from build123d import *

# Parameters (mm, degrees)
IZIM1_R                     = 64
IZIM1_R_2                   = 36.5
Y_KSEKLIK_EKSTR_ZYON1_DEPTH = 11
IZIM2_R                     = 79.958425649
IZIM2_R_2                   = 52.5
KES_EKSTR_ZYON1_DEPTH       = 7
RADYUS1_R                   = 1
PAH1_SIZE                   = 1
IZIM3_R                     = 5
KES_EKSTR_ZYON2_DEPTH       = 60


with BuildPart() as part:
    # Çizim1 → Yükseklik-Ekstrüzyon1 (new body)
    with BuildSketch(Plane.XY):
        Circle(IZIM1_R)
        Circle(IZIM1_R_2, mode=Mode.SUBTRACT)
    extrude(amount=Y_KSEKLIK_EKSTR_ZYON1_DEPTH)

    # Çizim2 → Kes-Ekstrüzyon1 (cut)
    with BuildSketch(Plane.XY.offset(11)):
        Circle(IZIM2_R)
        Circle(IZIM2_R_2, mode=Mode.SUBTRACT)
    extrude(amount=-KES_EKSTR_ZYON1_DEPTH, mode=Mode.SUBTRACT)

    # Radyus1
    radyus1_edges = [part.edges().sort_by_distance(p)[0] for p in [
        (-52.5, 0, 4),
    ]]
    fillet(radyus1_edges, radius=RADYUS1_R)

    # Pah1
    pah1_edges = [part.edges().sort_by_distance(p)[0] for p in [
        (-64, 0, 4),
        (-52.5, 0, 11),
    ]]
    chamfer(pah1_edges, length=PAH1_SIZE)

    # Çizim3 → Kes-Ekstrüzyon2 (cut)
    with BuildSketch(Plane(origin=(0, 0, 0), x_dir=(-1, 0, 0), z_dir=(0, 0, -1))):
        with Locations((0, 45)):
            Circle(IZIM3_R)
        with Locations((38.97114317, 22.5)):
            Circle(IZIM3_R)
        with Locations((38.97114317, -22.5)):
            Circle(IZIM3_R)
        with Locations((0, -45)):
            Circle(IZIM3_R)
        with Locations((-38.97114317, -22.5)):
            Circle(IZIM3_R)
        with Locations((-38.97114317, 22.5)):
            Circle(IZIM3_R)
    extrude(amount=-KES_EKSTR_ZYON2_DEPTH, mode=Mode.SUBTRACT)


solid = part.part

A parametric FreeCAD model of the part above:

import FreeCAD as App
import Part
import Sketcher

V = App.Vector
Q = App.Units.Quantity


def edges_at(feature, points):
    """Names of the edges that pass closest to the given points."""
    edges = feature.Shape.Edges
    near = lambda p: min(range(len(edges)), key=lambda i: edges[i].distToShape(Part.Vertex(*p))[0])
    return sorted({f"Edge{near(p) + 1}" for p in points})

doc = App.newDocument("Part")
body = doc.addObject("PartDesign::Body", "Body")

# Sketch on XY plane
sketch1 = body.newObject("Sketcher::SketchObject", "Sketch")
sketch1.AttachmentSupport = (doc.getObject("XY_Plane"), [""])
sketch1.MapMode = "FlatFace"
sketch1.addGeometry(Part.Circle(V(0, 0, 0), V(0, 0, 1), 64), False)
sketch1.addGeometry(Part.Circle(V(0, 0, 0), V(0, 0, 1), 36.5), False)
sketch1.addConstraint(Sketcher.Constraint("Coincident", 0, 3, -1, 1))
sketch1.addConstraint(Sketcher.Constraint("Coincident", 1, 3, -1, 1))
sketch1.addConstraint(Sketcher.Constraint("Diameter", 0, Q("128 mm")))
sketch1.addConstraint(Sketcher.Constraint("Diameter", 1, Q("73 mm")))
pad1 = body.newObject("PartDesign::Pad", "Pad")
pad1.Profile = sketch1
pad1.Length = 11

# Sketch on XY plane
sketch2 = body.newObject("Sketcher::SketchObject", "Sketch001")
sketch2.AttachmentSupport = (doc.getObject("XY_Plane"), [""])
sketch2.MapMode = "FlatFace"
sketch2.AttachmentOffset = App.Placement(V(0, 0, 11), App.Rotation())
sketch2.addGeometry(Part.Circle(V(0, 0, 0), V(0, 0, 1), 79.958426), False)
sketch2.addGeometry(Part.Circle(V(0, 0, 0), V(0, 0, 1), 52.5), False)
sketch2.addConstraint(Sketcher.Constraint("Coincident", 0, 3, -1, 1))
sketch2.addConstraint(Sketcher.Constraint("Coincident", 1, 3, -1, 1))
sketch2.addConstraint(Sketcher.Constraint("Diameter", 1, Q("105 mm")))
sketch2.addConstraint(Sketcher.Constraint("Diameter", 0, Q("159.916851 mm")))
pocket1 = body.newObject("PartDesign::Pocket", "Pocket")
pocket1.Profile = sketch2
pocket1.Length = 7
doc.recompute()

fillet = body.newObject("PartDesign::Fillet", "Fillet")
fillet.Base = (pocket1, edges_at(pocket1, [(-52.5, 0, 4)]))
fillet.Radius = 1
doc.recompute()

chamfer = body.newObject("PartDesign::Chamfer", "Chamfer")
chamfer.Base = (fillet, edges_at(fillet, [(-64, 0, 4), (-52.5, 0, 11)]))
chamfer.Size = 1

# Sketch on XY plane
sketch3 = body.newObject("Sketcher::SketchObject", "Sketch002")
sketch3.AttachmentSupport = (doc.getObject("XY_Plane"), [""])
sketch3.MapMode = "FlatFace"
sketch3.addGeometry(Part.Circle(V(0, 45, 0), V(0, 0, 1), 5), False)
sketch3.addGeometry(Part.Circle(V(-38.971143, 22.5, 0), V(0, 0, 1), 5), False)
sketch3.addGeometry(Part.Circle(V(-38.971143, -22.5, 0), V(0, 0, 1), 5), False)
sketch3.addGeometry(Part.Circle(V(0, -45, 0), V(0, 0, 1), 5), False)
sketch3.addGeometry(Part.Circle(V(38.971143, -22.5, 0), V(0, 0, 1), 5), False)
sketch3.addGeometry(Part.Circle(V(38.971143, 22.5, 0), V(0, 0, 1), 5), False)
sketch3.addConstraint(Sketcher.Constraint("Equal", 0, 1))
sketch3.addConstraint(Sketcher.Constraint("Equal", 1, 2))
sketch3.addConstraint(Sketcher.Constraint("Equal", 2, 3))
sketch3.addConstraint(Sketcher.Constraint("Equal", 3, 4))
sketch3.addConstraint(Sketcher.Constraint("Equal", 4, 5))
sketch3.addConstraint(Sketcher.Constraint("Symmetric", 0, 3, 3, 3, -1, 1))
sketch3.addConstraint(Sketcher.Constraint("Symmetric", 1, 3, 4, 3, -1, 1))
sketch3.addConstraint(Sketcher.Constraint("Symmetric", 2, 3, 5, 3, -1, 1))
sketch3.addConstraint(Sketcher.Constraint("Symmetric", 2, 3, 4, 3, -2))
sketch3.addConstraint(Sketcher.Constraint("PointOnObject", 0, 3, -2))
sketch3.addConstraint(Sketcher.Constraint("Diameter", 0, Q("10 mm")))
sketch3.addConstraint(Sketcher.Constraint("DistanceY", -1, 1, 0, 3, Q("45 mm")))
sketch3.addConstraint(Sketcher.Constraint("DistanceY", 2, 3, 1, 3, Q("45 mm")))
sketch3.addConstraint(Sketcher.Constraint("DistanceX", 1, 3, -1, 1, Q("38.971143 mm")))
pocket2 = body.newObject("PartDesign::Pocket", "Pocket001")
pocket2.Profile = sketch3
pocket2.Length = 60
pocket2.Reversed = True

doc.recompute()
